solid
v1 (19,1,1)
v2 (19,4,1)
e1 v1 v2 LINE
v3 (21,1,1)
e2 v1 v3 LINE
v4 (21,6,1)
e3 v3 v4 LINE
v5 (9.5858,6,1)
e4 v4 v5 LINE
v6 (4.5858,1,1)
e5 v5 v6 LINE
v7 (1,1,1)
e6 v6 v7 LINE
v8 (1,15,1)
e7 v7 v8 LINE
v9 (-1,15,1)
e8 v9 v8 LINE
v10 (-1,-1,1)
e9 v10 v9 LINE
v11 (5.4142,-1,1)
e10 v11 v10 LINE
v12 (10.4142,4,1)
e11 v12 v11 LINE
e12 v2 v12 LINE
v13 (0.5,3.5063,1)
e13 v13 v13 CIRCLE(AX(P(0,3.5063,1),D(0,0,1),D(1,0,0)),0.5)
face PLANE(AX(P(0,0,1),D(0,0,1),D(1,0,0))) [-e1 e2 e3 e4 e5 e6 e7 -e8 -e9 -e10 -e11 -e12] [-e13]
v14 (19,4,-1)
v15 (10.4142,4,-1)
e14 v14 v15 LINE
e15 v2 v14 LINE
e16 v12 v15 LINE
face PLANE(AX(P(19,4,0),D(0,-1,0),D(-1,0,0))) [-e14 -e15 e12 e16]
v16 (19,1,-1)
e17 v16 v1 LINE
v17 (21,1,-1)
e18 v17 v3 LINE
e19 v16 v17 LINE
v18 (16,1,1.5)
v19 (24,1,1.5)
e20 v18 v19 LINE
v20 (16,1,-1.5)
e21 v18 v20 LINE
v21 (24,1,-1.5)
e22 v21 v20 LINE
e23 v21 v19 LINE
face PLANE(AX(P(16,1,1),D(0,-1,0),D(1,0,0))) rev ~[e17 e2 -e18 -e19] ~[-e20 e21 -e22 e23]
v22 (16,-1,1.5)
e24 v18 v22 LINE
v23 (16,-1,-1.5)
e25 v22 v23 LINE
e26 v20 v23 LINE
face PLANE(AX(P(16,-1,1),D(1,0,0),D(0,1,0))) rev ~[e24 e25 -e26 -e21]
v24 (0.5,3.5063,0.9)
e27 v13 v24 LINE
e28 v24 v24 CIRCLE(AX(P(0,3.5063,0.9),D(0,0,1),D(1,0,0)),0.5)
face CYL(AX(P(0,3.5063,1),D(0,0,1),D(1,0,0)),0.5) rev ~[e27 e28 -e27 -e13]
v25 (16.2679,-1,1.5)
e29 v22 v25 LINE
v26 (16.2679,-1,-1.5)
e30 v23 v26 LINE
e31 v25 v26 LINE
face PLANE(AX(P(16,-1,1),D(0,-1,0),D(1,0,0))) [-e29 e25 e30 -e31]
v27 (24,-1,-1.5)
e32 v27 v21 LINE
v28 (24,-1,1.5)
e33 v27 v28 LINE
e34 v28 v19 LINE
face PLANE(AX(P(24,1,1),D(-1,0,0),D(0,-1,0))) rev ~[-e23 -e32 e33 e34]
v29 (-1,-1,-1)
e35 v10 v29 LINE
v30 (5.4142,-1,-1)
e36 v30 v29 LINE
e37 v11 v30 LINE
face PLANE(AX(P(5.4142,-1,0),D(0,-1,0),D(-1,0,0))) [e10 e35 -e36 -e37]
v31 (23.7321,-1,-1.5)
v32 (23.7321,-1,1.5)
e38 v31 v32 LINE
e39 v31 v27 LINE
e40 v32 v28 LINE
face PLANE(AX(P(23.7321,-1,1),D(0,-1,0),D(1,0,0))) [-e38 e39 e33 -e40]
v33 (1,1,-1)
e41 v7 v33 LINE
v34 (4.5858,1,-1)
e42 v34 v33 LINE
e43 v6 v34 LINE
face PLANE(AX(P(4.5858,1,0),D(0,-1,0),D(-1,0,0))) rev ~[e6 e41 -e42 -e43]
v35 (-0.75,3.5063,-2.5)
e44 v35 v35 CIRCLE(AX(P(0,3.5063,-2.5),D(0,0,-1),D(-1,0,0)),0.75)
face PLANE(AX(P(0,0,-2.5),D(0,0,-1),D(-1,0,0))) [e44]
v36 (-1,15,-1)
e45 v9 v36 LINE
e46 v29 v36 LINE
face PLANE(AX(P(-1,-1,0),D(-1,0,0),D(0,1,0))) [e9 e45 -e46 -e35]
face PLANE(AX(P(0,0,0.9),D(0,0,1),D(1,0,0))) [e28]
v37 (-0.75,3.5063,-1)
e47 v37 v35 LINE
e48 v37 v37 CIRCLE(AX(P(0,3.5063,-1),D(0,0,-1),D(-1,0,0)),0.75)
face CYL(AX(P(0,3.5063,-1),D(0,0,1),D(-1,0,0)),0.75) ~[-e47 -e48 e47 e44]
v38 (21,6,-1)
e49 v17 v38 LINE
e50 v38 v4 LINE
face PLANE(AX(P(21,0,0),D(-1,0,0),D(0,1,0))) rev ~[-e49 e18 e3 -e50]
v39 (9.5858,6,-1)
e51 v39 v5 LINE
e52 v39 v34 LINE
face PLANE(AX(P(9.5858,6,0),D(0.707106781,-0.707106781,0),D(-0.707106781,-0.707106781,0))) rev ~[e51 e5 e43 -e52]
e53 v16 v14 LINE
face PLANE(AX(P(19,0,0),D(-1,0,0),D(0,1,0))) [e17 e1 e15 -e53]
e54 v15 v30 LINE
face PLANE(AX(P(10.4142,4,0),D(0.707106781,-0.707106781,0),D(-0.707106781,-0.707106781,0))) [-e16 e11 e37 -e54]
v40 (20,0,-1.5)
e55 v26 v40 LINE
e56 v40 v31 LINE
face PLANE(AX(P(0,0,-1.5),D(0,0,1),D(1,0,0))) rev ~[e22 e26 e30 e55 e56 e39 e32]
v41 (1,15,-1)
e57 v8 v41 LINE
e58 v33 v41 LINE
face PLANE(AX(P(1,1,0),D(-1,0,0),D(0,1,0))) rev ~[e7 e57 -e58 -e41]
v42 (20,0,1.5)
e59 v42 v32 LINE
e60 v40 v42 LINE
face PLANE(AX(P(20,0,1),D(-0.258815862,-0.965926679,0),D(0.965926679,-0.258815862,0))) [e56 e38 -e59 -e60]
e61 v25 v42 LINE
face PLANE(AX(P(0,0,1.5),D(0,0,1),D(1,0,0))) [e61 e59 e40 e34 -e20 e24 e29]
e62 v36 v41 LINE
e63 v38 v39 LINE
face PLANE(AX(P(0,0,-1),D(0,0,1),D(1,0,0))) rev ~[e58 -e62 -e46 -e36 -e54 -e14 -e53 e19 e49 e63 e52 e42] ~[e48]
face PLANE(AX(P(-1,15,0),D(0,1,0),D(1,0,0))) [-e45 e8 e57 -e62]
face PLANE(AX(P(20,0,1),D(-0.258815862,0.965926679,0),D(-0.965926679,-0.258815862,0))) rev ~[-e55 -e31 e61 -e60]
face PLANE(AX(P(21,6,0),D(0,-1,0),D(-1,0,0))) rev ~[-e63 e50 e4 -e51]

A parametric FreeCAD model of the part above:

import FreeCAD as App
import Part
import Sketcher
Q = App.Units.Quantity

doc = App.newDocument("Part")
body = doc.addObject("PartDesign::Body", "Body")

sketch1 = doc.addObject("Sketcher::SketchObject", "Sketch")
body.addObject(sketch1)
sketch1.AttachmentSupport = (doc.XY_Plane, [""])
sketch1.MapMode = "FlatFace"
sketch1.addGeometry([
    Part.LineSegment(App.Vector(19, 0, 0), App.Vector(21, 0, 0)),
    Part.LineSegment(App.Vector(21, 0, 0), App.Vector(21, 6, 0)),
    Part.LineSegment(App.Vector(21, 6, 0), App.Vector(9.5858, 6, 0)),
    Part.LineSegment(App.Vector(9.5858, 6, 0), App.Vector(4.5858, 1, 0)),
    Part.LineSegment(App.Vector(4.5858, 1, 0), App.Vector(1, 1, 0)),
    Part.LineSegment(App.Vector(1, 1, 0), App.Vector(1, 15, 0)),
    Part.LineSegment(App.Vector(1, 15, 0), App.Vector(-1, 15, 0)),
    Part.LineSegment(App.Vector(-1, 15, 0), App.Vector(-1, -1, 0)),
    Part.LineSegment(App.Vector(-1, -1, 0), App.Vector(5.4142, -1, 0)),
    Part.LineSegment(App.Vector(5.4142, -1, 0), App.Vector(10.4142, 4, 0)),
    Part.LineSegment(App.Vector(10.4142, 4, 0), App.Vector(19, 4, 0)),
    Part.LineSegment(App.Vector(19, 4, 0), App.Vector(19, 0, 0)),
], False)
sketch1.addConstraint([
    Sketcher.Constraint("Coincident", 0, 2, 1, 1),
    Sketcher.Constraint("Coincident", 1, 2, 2, 1),
    Sketcher.Constraint("Coincident", 2, 2, 3, 1),
    Sketcher.Constraint("Coincident", 3, 2, 4, 1),
    Sketcher.Constraint("Coincident", 4, 2, 5, 1),
    Sketcher.Constraint("Coincident", 5, 2, 6, 1),
    Sketcher.Constraint("Coincident", 6, 2, 7, 1),
    Sketcher.Constraint("Coincident", 7, 2, 8, 1),
    Sketcher.Constraint("Coincident", 8, 2, 9, 1),
    Sketcher.Constraint("Coincident", 9, 2, 10, 1),
    Sketcher.Constraint("Coincident", 10, 2, 11, 1),
    Sketcher.Constraint("Coincident", 11, 2, 0, 1),
    Sketcher.Constraint("Horizontal", 0),
    Sketcher.Constraint("Vertical", 1),
    Sketcher.Constraint("Horizontal", 2),
    Sketcher.Constraint("Horizontal", 4),
    Sketcher.Constraint("Vertical", 5),
    Sketcher.Constraint("Horizontal", 6),
    Sketcher.Constraint("Vertical", 7),
    Sketcher.Constraint("Horizontal", 8),
    Sketcher.Constraint("Horizontal", 10),
    Sketcher.Constraint("Vertical", 11),
    Sketcher.Constraint("Symmetric", 4, 2, 7, 2, -1, 1),
    Sketcher.Constraint("PointOnObject", 0, 2, -1),
    Sketcher.Constraint("Parallel", 3, 9),
    Sketcher.Constraint("Equal", 0, 6),
    Sketcher.Constraint("Equal", 3, 9),
    Sketcher.Constraint("Angle", 9, Q("45 deg")),
    Sketcher.Constraint("DistanceY", -1, 1, 3, 2, 1.0),
    Sketcher.Constraint("DistanceX", -1, 1, 4, 2, 1.0),
    Sketcher.Constraint("DistanceY", -1, 1, 5, 2, 15.0),
    Sketcher.Constraint("DistanceX", 3, 2, 2, 2, 5.0),
    Sketcher.Constraint("DistanceX", 4, 2, 0, 2, 20.0),
    Sketcher.Constraint("DistanceX", 2, 2, 2, 1, 11.4142),
    Sketcher.Constraint("DistanceX", 8, 1, 8, 2, 6.4142),
])
pad1 = doc.addObject("PartDesign::Pad", "Pad")
body.addObject(pad1)
pad1.Profile = sketch1
pad1.Length = 2
pad1.Midplane = True

sketch2 = doc.addObject("Sketcher::SketchObject", "Sketch001")
body.addObject(sketch2)
sketch2.AttachmentSupport = (doc.XY_Plane, [""])
sketch2.MapMode = "FlatFace"
sketch2.AttachmentOffset = App.Placement(App.Vector(0, 0, -1), App.Rotation())
sketch2.addGeometry(Part.Circle(App.Vector(0, 3.5063, 0), App.Vector(0, 0, 1), 0.75), False)
sketch2.addConstraint([
    Sketcher.Constraint("PointOnObject", 0, 3, -2),
    Sketcher.Constraint("Diameter", 0, 1.5),
    Sketcher.Constraint("DistanceY", -1, 1, 0, 3, 3.5063),
])
pad2 = doc.addObject("PartDesign::Pad", "Pad001")
body.addObject(pad2)
pad2.Profile = sketch2
pad2.Length = 1.5
pad2.Reversed = True

sketch3 = doc.addObject("Sketcher::SketchObject", "Sketch002")
body.addObject(sketch3)
sketch3.AttachmentSupport = (doc.XY_Plane, [""])
sketch3.MapMode = "FlatFace"
sketch3.AttachmentOffset = App.Placement(App.Vector(0, 0, 1), App.Rotation())
sketch3.addGeometry([
    Part.LineSegment(App.Vector(16.2679, -1, 0), App.Vector(20, 0, 0)),
    Part.LineSegment(App.Vector(20, 0, 0), App.Vector(23.7321, -1, 0)),
    Part.LineSegment(App.Vector(23.7321, -1, 0), App.Vector(24, -1, 0)),
    Part.LineSegment(App.Vector(24, -1, 0), App.Vector(24, 1, 0)),
    Part.LineSegment(App.Vector(24, 1, 0), App.Vector(16, 1, 0)),
    Part.LineSegment(App.Vector(16, 1, 0), App.Vector(16, -1, 0)),
    Part.LineSegment(App.Vector(16, -1, 0), App.Vector(16.2679, -1, 0)),
], False)
sketch3.addConstraint([
    Sketcher.Constraint("Coincident", 0, 2, 1, 1),
    Sketcher.Constraint("Coincident", 1, 2, 2, 1),
    Sketcher.Constraint("Coincident", 2, 2, 3, 1),
    Sketcher.Constraint("Coincident", 3, 2, 4, 1),
    Sketcher.Constraint("Coincident", 4, 2, 5, 1),
    Sketcher.Constraint("Coincident", 5, 2, 6, 1),
    Sketcher.Constraint("Coincident", 6, 2, 0, 1),
    Sketcher.Constraint("Horizontal", 2),
    Sketcher.Constraint("Vertical", 3),
    Sketcher.Constraint("Horizontal", 4),
    Sketcher.Constraint("Vertical", 5),
    Sketcher.Constraint("Horizontal", 6),
    Sketcher.Constraint("PointOnObject", 0, 2, -1),
    Sketcher.Constraint("Horizontal", 2, 2, 5, 2),
    Sketcher.Constraint("Equal", 2, 6),
    Sketcher.Constraint("Equal", 0, 1),
    Sketcher.Constraint("DistanceX", 4, 2, 4, 1, 8.0),
    Sketcher.Constraint("DistanceY", 3, 1, 3, 2, 2.0),
    Sketcher.Constraint("Angle", 0, Q("14.9998 deg")),
    Sketcher.Constraint("DistanceX", -1, 1, 0, 2, 20.0),
    Sketcher.Constraint("DistanceY", 1, 2, -1, 1, 1.0),
])
pad3 = doc.addObject("PartDesign::Pad", "Pad002")
body.addObject(pad3)
pad3.Profile = sketch3
pad3.Length = 2
pad3.Reversed = True

sketch4 = doc.addObject("Sketcher::SketchObject", "Sketch003")
body.addObject(sketch4)
sketch4.AttachmentSupport = (doc.XY_Plane, [""])
sketch4.MapMode = "FlatFace"
sketch4.addGeometry([
    Part.LineSegment(App.Vector(24, 1, 0), App.Vector(16, 1, 0)),
    Part.LineSegment(App.Vector(16, 1, 0), App.Vector(16, -1, 0)),
    Part.LineSegment(App.Vector(16, -1, 0), App.Vector(16.2679, -1, 0)),
    Part.LineSegment(App.Vector(16.2679, -1, 0), App.Vector(20, 0, 0)),
    Part.LineSegment(App.Vector(20, 0, 0), App.Vector(23.7321, -1, 0)),
    Part.LineSegment(App.Vector(23.7321, -1, 0), App.Vector(24, -1, 0)),
    Part.LineSegment(App.Vector(24, -1, 0), App.Vector(24, 1, 0)),
], False)
sketch4.addConstraint([
    Sketcher.Constraint("Coincident", 0, 2, 1, 1),
    Sketcher.Constraint("Coincident", 1, 2, 2, 1),
    Sketcher.Constraint("Coincident", 2, 2, 3, 1),
    Sketcher.Constraint("Coincident", 3, 2, 4, 1),
    Sketcher.Constraint("Coincident", 4, 2, 5, 1),
    Sketcher.Constraint("Coincident", 5, 2, 6, 1),
    Sketcher.Constraint("Coincident", 6, 2, 0, 1),
    Sketcher.Constraint("Horizontal", 0),
    Sketcher.Constraint("Vertical", 1),
    Sketcher.Constraint("Horizontal", 2),
    Sketcher.Constraint("Horizontal", 5),
    Sketcher.Constraint("Vertical", 6),
    Sketcher.Constraint("PointOnObject", 3, 2, -1),
    Sketcher.Constraint("Horizontal", 2, 2, 4, 2),
    Sketcher.Constraint("Equal", 2, 5),
    Sketcher.Constraint("Equal", 3, 4),
    Sketcher.Constraint("DistanceX", 0, 2, 0, 1, 8.0),
    Sketcher.Constraint("DistanceY", 1, 2, 1, 1, 2.0),
    Sketcher.Constraint("Angle", 3, Q("14.9998 deg")),
    Sketcher.Constraint("DistanceX", -1, 1, 0, 2, 16.0),
    Sketcher.Constraint("DistanceY", -1, 1, 0, 2, 1.0),
])
pad4 = doc.addObject("PartDesign::Pad", "Pad003")
body.addObject(pad4)
pad4.Profile = sketch4
pad4.Length = 3
pad4.Midplane = True

sketch5 = doc.addObject("Sketcher::SketchObject", "Sketch004")
body.addObject(sketch5)
sketch5.AttachmentSupport = (doc.XY_Plane, [""])
sketch5.MapMode = "FlatFace"
sketch5.AttachmentOffset = App.Placement(App.Vector(0, 0, 1), App.Rotation())
sketch5.addGeometry(Part.Circle(App.Vector(0, 3.5063, 0), App.Vector(0, 0, 1), 0.5), False)
sketch5.addConstraint([
    Sketcher.Constraint("PointOnObject", 0, 3, -2),
    Sketcher.Constraint("Diameter", 0, 1.0),
    Sketcher.Constraint("DistanceY", -1, 1, 0, 3, 3.5063),
])
pocket1 = doc.addObject("PartDesign::Pocket", "Pocket")
body.addObject(pocket1)
pocket1.Profile = sketch5
pocket1.Length = 0.1

doc.recompute()
